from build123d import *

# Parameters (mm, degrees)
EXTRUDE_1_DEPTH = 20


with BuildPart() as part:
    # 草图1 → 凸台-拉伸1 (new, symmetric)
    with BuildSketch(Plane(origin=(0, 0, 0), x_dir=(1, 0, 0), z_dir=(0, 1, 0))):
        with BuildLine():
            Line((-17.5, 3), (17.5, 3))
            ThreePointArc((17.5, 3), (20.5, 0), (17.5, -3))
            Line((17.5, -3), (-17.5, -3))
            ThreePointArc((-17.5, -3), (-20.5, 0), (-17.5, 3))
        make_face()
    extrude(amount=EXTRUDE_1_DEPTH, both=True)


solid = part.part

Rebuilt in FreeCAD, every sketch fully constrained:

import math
import FreeCAD as App
import Part
import Sketcher
from FreeCAD import Vector
Q = App.Units.Quantity

doc = App.newDocument("Part")
body = doc.addObject("PartDesign::Body", "Body")

# Sketch on XZ plane
sketch1 = body.newObject("Sketcher::SketchObject", "Sketch")
sketch1.AttachmentSupport = (doc.getObject("XZ_Plane"), [""])
sketch1.MapMode = "FlatFace"
sketch1.addGeometry(Part.LineSegment(Vector(17.5, -3, 0), Vector(-17.5, -3, 0)), False)
sketch1.addGeometry(Part.ArcOfCircle(Part.Circle(Vector(-17.5, 0, 0), Vector(0, 0, 1), 3), math.radians(90), math.radians(270)), False)
sketch1.addGeometry(Part.LineSegment(Vector(-17.5, 3, 0), Vector(17.5, 3, 0)), False)
sketch1.addGeometry(Part.ArcOfCircle(Part.Circle(Vector(17.5, 0, 0), Vector(0, 0, 1), 3), math.radians(-90), math.radians(90)), False)
sketch1.addConstraint(Sketcher.Constraint("Tangent", 0, 2, 1, 2))
sketch1.addConstraint(Sketcher.Constraint("Tangent", 1, 1, 2, 1))
sketch1.addConstraint(Sketcher.Constraint("Tangent", 2, 2, 3, 2))
sketch1.addConstraint(Sketcher.Constraint("Tangent", 3, 1, 0, 1))
sketch1.addConstraint(Sketcher.Constraint("Horizontal", 0))
sketch1.addConstraint(Sketcher.Constraint("Horizontal", 2))
sketch1.addConstraint(Sketcher.Constraint("Symmetric", 1, 3, 3, 3, -1, 1))
sketch1.addConstraint(Sketcher.Constraint("Radius", 1, Q("3 mm")))
sketch1.addConstraint(Sketcher.Constraint("DistanceX", 0, 2, 0, 1, Q("35 mm")))
pad1 = body.newObject("PartDesign::Pad", "Pad")
pad1.Profile = sketch1
pad1.Length = 40
pad1.Midplane = True

doc.recompute()
